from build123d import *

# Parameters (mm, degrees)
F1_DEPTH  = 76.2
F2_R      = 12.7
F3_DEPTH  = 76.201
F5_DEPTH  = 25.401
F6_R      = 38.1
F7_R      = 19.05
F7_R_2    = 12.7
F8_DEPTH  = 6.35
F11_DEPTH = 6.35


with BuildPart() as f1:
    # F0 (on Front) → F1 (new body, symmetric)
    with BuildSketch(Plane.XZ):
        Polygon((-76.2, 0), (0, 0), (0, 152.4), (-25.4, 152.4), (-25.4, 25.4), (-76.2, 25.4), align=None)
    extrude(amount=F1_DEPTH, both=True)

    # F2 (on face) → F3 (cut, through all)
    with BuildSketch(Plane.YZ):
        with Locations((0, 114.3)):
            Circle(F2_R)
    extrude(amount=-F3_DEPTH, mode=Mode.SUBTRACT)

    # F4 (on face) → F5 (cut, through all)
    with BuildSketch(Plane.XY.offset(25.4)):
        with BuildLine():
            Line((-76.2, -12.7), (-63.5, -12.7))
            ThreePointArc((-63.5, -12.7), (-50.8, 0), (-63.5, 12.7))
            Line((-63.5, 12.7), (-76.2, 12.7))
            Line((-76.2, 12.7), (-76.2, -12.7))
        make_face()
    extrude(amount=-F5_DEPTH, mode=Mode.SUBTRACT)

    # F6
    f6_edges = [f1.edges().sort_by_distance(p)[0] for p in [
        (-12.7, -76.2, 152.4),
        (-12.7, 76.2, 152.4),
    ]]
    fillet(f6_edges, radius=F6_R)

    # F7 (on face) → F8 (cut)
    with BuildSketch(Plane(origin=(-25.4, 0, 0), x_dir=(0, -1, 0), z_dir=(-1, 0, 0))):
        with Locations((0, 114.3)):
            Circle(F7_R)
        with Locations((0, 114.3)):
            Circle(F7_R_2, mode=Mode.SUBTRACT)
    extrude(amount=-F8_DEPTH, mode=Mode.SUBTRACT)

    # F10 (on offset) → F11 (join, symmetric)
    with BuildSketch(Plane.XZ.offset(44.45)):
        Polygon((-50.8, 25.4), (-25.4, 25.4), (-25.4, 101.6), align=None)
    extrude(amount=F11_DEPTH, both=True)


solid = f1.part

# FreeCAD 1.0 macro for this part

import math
import FreeCAD as App
import Part
import Sketcher

V = App.Vector
Q = App.Units.Quantity


def edges_at(feature, points):
    """Names of the edges that pass closest to the given points."""
    edges = feature.Shape.Edges
    near = lambda p: min(range(len(edges)), key=lambda i: edges[i].distToShape(Part.Vertex(*p))[0])
    return sorted({f"Edge{near(p) + 1}" for p in points})


def add_polygon(sketch, points):
    """Adds a closed chain of lines whose ends are joined by coincident constraints."""
    first, n = sketch.GeometryCount, len(points)
    for a, b in zip(points, points[1:] + points[:1]):
        sketch.addGeometry(Part.LineSegment(App.Vector(*a, 0), App.Vector(*b, 0)), False)
    for i in range(n):
        sketch.addConstraint(Sketcher.Constraint("Coincident", first + i, 2, first + (i + 1) % n, 1))

doc = App.newDocument("Part")
body = doc.addObject("PartDesign::Body", "Body")

# Sketch on XZ plane
sketch1 = body.newObject("Sketcher::SketchObject", "Sketch")
sketch1.AttachmentSupport = (doc.getObject("XZ_Plane"), [""])
sketch1.MapMode = "FlatFace"
add_polygon(sketch1, [(-76, 0), (0, 0), (0, 152), (-25, 152), (-25, 25), (-76, 25)])  # lines 0-5
sketch1.addConstraint([
    Sketcher.Constraint("Horizontal", 0),
    Sketcher.Constraint("Vertical", 1),
    Sketcher.Constraint("Horizontal", 2),
    Sketcher.Constraint("Vertical", 3),
    Sketcher.Constraint("Horizontal", 4),
    Sketcher.Constraint("Vertical", 5),
    Sketcher.Constraint("Coincident", 0, 2, -1, 1),
    Sketcher.Constraint("Equal", 2, 5),
    Sketcher.Constraint("DistanceX", 0, 1, 0, 2, Q("3 in")),
    Sketcher.Constraint("DistanceX", 2, 2, 2, 1, Q("1 in")),
    Sketcher.Constraint("DistanceY", 1, 1, 1, 2, Q("6 in")),
])
pad1 = body.newObject("PartDesign::Pad", "Pad")
pad1.Profile = sketch1
pad1.Length = Q("6 in")
pad1.Midplane = True

# Sketch on YZ plane
sketch2 = body.newObject("Sketcher::SketchObject", "Sketch001")
sketch2.AttachmentSupport = (doc.getObject("YZ_Plane"), [""])
sketch2.MapMode = "FlatFace"
sketch2.addGeometry(Part.Circle(V(0, 114, 0), V(0, 0, 1), 13), False)
sketch2.addConstraint([
    Sketcher.Constraint("PointOnObject", 0, 3, -2),
    Sketcher.Constraint("Diameter", 0, Q("1 in")),
    Sketcher.Constraint("DistanceY", -1, 1, 0, 3, Q("4.5 in")),
])
pocket1 = body.newObject("PartDesign::Pocket", "Pocket")
pocket1.Profile = sketch2
pocket1.Type = "ThroughAll"

# Sketch on XY plane
sketch3 = body.newObject("Sketcher::SketchObject", "Sketch002")
sketch3.AttachmentSupport = (doc.getObject("XY_Plane"), [""])
sketch3.MapMode = "FlatFace"
sketch3.AttachmentOffset = App.Placement(V(0, 0, 1 * 25.4), App.Rotation())
sketch3.addGeometry([
    Part.LineSegment(V(-76, -13, 0), V(-64, -13, 0)),
    Part.ArcOfCircle(Part.Circle(V(-64, 0, 0), V(0, 0, 1), 13), math.radians(-90), math.radians(90)),
    Part.LineSegment(V(-64, 13, 0), V(-76, 13, 0)),
    Part.LineSegment(V(-76, 13, 0), V(-76, -13, 0)),
], False)
sketch3.addConstraint([
    Sketcher.Constraint("Tangent", 0, 2, 1, 1),
    Sketcher.Constraint("Tangent", 1, 2, 2, 1),
    Sketcher.Constraint("Coincident", 2, 2, 3, 1),
    Sketcher.Constraint("Coincident", 3, 2, 0, 1),
    Sketcher.Constraint("Horizontal", 0),
    Sketcher.Constraint("Horizontal", 2),
    Sketcher.Constraint("Vertical", 3),
    Sketcher.Constraint("PointOnObject", 1, 3, -1),
    Sketcher.Constraint("Radius", 1, Q("0.5 in")),
    Sketcher.Constraint("DistanceX", 0, 1, 0, 2, Q("0.5 in")),
    Sketcher.Constraint("DistanceX", 2, 2, -1, 1, Q("3 in")),
])
pocket2 = body.newObject("PartDesign::Pocket", "Pocket001")
pocket2.Profile = sketch3
pocket2.Type = "ThroughAll"
doc.recompute()

fillet = body.newObject("PartDesign::Fillet", "Fillet")
fillet.Base = (pocket2, edges_at(pocket2, [(-12.7, -76.2, 152.4), (-12.7, 76.2, 152.4)]))
fillet.Radius = Q("1.5 in")

# Sketch on YZ plane
sketch4 = body.newObject("Sketcher::SketchObject", "Sketch003")
sketch4.AttachmentSupport = (doc.getObject("YZ_Plane"), [""])
sketch4.MapMode = "FlatFace"
sketch4.AttachmentOffset = App.Placement(V(0, 0, -1 * 25.4), App.Rotation())
sketch4.addGeometry([
    Part.Circle(V(0, 114, 0), V(0, 0, 1), 19),
    Part.Circle(V(0, 114, 0), V(0, 0, 1), 13),
], False)
sketch4.addConstraint([
    Sketcher.Constraint("Coincident", 1, 3, 0, 3),
    Sketcher.Constraint("PointOnObject", 0, 3, -2),
    Sketcher.Constraint("Diameter", 1, Q("1 in")),
    Sketcher.Constraint("Diameter", 0, Q("1.5 in")),
    Sketcher.Constraint("DistanceY", -1, 1, 0, 3, Q("4.5 in")),
])
pocket3 = body.newObject("PartDesign::Pocket", "Pocket002")
pocket3.Profile = sketch4
pocket3.Length = Q("0.25 in")
pocket3.Reversed = True

# Sketch on XZ plane
sketch5 = body.newObject("Sketcher::SketchObject", "Sketch004")
sketch5.AttachmentSupport = (doc.getObject("XZ_Plane"), [""])
sketch5.MapMode = "FlatFace"
sketch5.AttachmentOffset = App.Placement(V(0, 0, 1.75 * 25.4), App.Rotation())
add_polygon(sketch5, [(-51, 25), (-25, 25), (-25, 102)])  # lines 0-2
sketch5.addConstraint([
    Sketcher.Constraint("Horizontal", 0),
    Sketcher.Constraint("Vertical", 1),
    Sketcher.Constraint("DistanceX", 0, 1, 0, 2, Q("1 in")),
    Sketcher.Constraint("DistanceY", 1, 1, 1, 2, Q("3 in")),
    Sketcher.Constraint("DistanceX", 0, 2, -1, 1, Q("1 in")),
    Sketcher.Constraint("DistanceY", -1, 1, 0, 2, Q("1 in")),
])
pad2 = body.newObject("PartDesign::Pad", "Pad001")
pad2.Profile = sketch5
pad2.Length = Q("0.5 in")
pad2.Midplane = True

doc.recompute()
